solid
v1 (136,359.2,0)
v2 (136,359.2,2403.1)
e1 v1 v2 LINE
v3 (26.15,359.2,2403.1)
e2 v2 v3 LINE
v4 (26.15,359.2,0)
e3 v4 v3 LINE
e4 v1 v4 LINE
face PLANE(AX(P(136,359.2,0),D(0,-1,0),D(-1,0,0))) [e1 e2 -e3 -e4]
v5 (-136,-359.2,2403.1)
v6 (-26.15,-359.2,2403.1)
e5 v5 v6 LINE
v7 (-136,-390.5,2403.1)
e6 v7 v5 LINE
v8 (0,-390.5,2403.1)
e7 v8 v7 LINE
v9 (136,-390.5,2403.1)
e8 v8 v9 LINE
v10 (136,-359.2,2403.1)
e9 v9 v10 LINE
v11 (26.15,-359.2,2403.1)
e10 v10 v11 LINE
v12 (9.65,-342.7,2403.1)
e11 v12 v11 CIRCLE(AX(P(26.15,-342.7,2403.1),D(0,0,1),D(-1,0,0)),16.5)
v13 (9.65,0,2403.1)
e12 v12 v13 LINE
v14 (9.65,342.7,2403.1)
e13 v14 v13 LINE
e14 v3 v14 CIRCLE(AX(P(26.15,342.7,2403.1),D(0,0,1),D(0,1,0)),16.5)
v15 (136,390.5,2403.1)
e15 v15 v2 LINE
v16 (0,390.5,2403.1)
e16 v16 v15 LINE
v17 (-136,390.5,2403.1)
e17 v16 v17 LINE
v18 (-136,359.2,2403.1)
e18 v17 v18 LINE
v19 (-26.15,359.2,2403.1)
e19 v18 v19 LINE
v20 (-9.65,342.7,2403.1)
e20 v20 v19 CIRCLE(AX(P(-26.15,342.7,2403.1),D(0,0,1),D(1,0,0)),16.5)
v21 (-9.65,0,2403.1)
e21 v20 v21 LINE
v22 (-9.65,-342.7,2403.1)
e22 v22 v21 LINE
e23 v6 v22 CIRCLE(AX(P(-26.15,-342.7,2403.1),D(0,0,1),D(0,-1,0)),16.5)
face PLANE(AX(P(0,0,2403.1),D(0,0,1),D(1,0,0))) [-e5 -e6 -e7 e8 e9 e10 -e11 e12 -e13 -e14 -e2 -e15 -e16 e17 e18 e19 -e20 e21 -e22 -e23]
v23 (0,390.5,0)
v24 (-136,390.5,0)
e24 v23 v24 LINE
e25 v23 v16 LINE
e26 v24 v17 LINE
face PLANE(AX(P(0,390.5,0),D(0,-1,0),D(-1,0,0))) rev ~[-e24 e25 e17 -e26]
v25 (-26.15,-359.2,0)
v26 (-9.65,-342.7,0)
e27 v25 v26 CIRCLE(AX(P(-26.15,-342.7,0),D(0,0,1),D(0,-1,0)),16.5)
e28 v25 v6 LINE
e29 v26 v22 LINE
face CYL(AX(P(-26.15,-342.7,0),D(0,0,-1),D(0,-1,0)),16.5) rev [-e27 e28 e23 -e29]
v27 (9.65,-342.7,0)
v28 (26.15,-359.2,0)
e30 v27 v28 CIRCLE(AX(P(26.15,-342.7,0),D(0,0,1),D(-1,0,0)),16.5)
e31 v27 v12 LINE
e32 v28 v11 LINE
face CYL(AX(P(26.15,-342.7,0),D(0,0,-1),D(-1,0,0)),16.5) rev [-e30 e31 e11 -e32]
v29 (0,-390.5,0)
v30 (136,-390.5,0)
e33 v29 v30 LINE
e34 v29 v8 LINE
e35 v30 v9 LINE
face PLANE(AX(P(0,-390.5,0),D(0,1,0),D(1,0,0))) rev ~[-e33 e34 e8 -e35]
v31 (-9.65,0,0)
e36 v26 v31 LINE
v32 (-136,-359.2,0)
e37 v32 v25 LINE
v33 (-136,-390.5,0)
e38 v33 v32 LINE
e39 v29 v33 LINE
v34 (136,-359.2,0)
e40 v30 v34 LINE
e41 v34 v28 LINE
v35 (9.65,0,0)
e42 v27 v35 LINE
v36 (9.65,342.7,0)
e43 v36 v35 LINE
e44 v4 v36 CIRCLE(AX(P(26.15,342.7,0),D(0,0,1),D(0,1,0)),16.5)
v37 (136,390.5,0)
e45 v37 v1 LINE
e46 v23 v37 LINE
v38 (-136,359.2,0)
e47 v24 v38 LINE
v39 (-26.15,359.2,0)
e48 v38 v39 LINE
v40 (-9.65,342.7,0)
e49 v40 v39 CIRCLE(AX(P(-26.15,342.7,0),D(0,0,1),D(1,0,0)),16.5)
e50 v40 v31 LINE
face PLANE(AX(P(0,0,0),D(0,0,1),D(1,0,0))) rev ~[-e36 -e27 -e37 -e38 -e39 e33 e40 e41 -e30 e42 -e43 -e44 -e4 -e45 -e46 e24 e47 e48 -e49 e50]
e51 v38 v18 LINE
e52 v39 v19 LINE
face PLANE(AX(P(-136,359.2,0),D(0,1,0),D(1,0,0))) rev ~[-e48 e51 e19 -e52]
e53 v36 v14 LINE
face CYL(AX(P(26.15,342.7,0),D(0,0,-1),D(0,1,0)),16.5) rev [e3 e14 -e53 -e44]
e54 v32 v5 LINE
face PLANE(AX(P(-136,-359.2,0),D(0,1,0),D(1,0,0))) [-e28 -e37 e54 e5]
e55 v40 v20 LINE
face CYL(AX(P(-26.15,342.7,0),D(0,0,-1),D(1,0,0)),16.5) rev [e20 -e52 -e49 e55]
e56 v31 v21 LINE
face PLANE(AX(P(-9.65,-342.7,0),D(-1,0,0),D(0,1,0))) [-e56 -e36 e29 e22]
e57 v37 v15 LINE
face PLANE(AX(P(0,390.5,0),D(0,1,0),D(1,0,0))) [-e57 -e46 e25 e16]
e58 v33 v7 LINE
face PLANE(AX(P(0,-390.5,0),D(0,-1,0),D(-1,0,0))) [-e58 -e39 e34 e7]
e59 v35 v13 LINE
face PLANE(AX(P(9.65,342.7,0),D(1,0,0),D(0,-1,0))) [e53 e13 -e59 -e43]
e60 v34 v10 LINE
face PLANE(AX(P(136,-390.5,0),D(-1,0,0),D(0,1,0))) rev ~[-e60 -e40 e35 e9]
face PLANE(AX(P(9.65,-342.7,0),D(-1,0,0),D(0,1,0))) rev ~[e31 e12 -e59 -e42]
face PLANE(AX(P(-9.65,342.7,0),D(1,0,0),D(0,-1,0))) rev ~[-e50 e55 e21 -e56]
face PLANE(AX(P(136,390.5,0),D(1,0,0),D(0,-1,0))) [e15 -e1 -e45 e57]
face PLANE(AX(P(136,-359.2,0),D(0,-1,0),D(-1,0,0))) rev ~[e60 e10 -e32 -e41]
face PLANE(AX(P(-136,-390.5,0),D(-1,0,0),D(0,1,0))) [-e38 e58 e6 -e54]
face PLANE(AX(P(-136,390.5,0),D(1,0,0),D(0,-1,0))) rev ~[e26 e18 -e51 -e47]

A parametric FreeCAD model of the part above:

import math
import FreeCAD as App
import Part
import Sketcher
from FreeCAD import Vector
Q = App.Units.Quantity

doc = App.newDocument("Part")
body = doc.addObject("PartDesign::Body", "Body")

# Sketch on XY plane
sketch1 = body.newObject("Sketcher::SketchObject", "Sketch")
sketch1.AttachmentSupport = (doc.getObject("XY_Plane"), [""])
sketch1.MapMode = "FlatFace"
sketch1.addGeometry([
    Part.LineSegment(Vector(-136, -359, 0), Vector(-136, -390, 0)),  # 0
    Part.LineSegment(Vector(-136, -390, 0), Vector(136, -390, 0)),  # 1
    Part.LineSegment(Vector(136, -390, 0), Vector(136, -359, 0)),  # 2
    Part.LineSegment(Vector(136, -359, 0), Vector(26, -359, 0)),  # 3
    Part.ArcOfCircle(Part.Circle(Vector(26, -343, 0), Vector(0, 0, 1), 16), math.radians(180), math.radians(270)),  # 4
    Part.LineSegment(Vector(10, -343, 0), Vector(10, 343, 0)),  # 5
    Part.ArcOfCircle(Part.Circle(Vector(26, 343, 0), Vector(0, 0, 1), 16), math.radians(90), math.radians(180)),  # 6
    Part.LineSegment(Vector(26, 359, 0), Vector(136, 359, 0)),  # 7
    Part.LineSegment(Vector(136, 359, 0), Vector(136, 390, 0)),  # 8
    Part.LineSegment(Vector(136, 390, 0), Vector(-136, 390, 0)),  # 9
    Part.LineSegment(Vector(-136, 390, 0), Vector(-136, 359, 0)),  # 10
    Part.LineSegment(Vector(-136, 359, 0), Vector(-26, 359, 0)),  # 11
    Part.ArcOfCircle(Part.Circle(Vector(-26, 343, 0), Vector(0, 0, 1), 16), math.radians(0), math.radians(90)),  # 12
    Part.LineSegment(Vector(-10, 343, 0), Vector(-10, -343, 0)),  # 13
    Part.ArcOfCircle(Part.Circle(Vector(-26, -343, 0), Vector(0, 0, 1), 16), math.radians(-90), math.radians(0)),  # 14
    Part.LineSegment(Vector(-26, -359, 0), Vector(-136, -359, 0)),  # 15
], False)
sketch1.addConstraint([
    Sketcher.Constraint("Coincident", 0, 2, 1, 1),
    Sketcher.Constraint("Coincident", 1, 2, 2, 1),
    Sketcher.Constraint("Coincident", 2, 2, 3, 1),
    Sketcher.Constraint("Tangent", 3, 2, 4, 2),
    Sketcher.Constraint("Tangent", 4, 1, 5, 1),
    Sketcher.Constraint("Tangent", 5, 2, 6, 2),
    Sketcher.Constraint("Tangent", 6, 1, 7, 1),
    Sketcher.Constraint("Coincident", 7, 2, 8, 1),
    Sketcher.Constraint("Coincident", 8, 2, 9, 1),
    Sketcher.Constraint("Coincident", 9, 2, 10, 1),
    Sketcher.Constraint("Coincident", 10, 2, 11, 1),
    Sketcher.Constraint("Tangent", 11, 2, 12, 2),
    Sketcher.Constraint("Tangent", 12, 1, 13, 1),
    Sketcher.Constraint("Tangent", 13, 2, 14, 2),
    Sketcher.Constraint("Tangent", 14, 1, 15, 1),
    Sketcher.Constraint("Coincident", 15, 2, 0, 1),
    Sketcher.Constraint("Vertical", 0),
    Sketcher.Constraint("Horizontal", 1),
    Sketcher.Constraint("Vertical", 2),
    Sketcher.Constraint("Horizontal", 3),
    Sketcher.Constraint("Vertical", 5),
    Sketcher.Constraint("Horizontal", 7),
    Sketcher.Constraint("Vertical", 8),
    Sketcher.Constraint("Horizontal", 9),
    Sketcher.Constraint("Vertical", 10),
    Sketcher.Constraint("Horizontal", 11),
    Sketcher.Constraint("Vertical", 13),
    Sketcher.Constraint("Horizontal", 15),
    Sketcher.Constraint("Equal", 4, 6),
    Sketcher.Constraint("Equal", 6, 12),
    Sketcher.Constraint("Equal", 12, 14),
    Sketcher.Constraint("Symmetric", 4, 3, 12, 3, -1, 1),
    Sketcher.Constraint("Symmetric", 0, 2, 8, 2, -1, 1),
    Sketcher.Constraint("Symmetric", 7, 2, 10, 2, -2),
    Sketcher.Constraint("Symmetric", 2, 2, 15, 2, -2),
    Sketcher.Constraint("Radius", 4, Q("16.5 mm")),
    Sketcher.Constraint("DistanceY", 0, 2, 0, 1, Q("31.3 mm")),
    Sketcher.Constraint("DistanceX", 0, 2, -1, 1, Q("136 mm")),
    Sketcher.Constraint("DistanceY", 0, 2, -1, 1, Q("390.5 mm")),
    Sketcher.Constraint("DistanceX", -1, 1, 4, 1, Q("9.65 mm")),
])
pad1 = body.newObject("PartDesign::Pad", "Pad")
pad1.Profile = sketch1
pad1.Length = 2403.1

doc.recompute()
